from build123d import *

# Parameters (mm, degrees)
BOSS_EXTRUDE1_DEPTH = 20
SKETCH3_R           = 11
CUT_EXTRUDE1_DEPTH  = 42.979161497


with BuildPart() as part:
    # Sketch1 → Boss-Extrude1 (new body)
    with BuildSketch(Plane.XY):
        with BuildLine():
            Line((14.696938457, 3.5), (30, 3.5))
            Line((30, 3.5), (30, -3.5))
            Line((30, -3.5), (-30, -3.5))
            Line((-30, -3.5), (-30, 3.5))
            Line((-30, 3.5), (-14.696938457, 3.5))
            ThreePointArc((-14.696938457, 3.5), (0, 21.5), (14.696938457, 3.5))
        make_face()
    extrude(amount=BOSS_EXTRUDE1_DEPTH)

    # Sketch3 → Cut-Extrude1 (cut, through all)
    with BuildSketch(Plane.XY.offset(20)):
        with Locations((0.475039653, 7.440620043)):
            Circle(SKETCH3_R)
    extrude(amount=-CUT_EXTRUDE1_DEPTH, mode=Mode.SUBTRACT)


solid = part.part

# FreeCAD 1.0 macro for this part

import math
import FreeCAD as App
import Part
import Sketcher

V = App.Vector

doc = App.newDocument("Part")
body = doc.addObject("PartDesign::Body", "Body")

# Sketch on XY plane
sketch1 = body.newObject("Sketcher::SketchObject", "Sketch")
sketch1.AttachmentSupport = (doc.getObject("XY_Plane"), [""])
sketch1.MapMode = "FlatFace"
sketch1.addGeometry(Part.LineSegment(V(30, 4, 0), V(15, 4, 0)), False)
sketch1.addGeometry(Part.ArcOfCircle(Part.Circle(V(0, 6, 0), V(0, 0, 1), 15), math.radians(-12), math.radians(192)), False)
sketch1.addGeometry(Part.LineSegment(V(-15, 4, 0), V(-30, 4, 0)), False)
sketch1.addGeometry(Part.LineSegment(V(-30, 4, 0), V(-30, -4, 0)), False)
sketch1.addGeometry(Part.LineSegment(V(-30, -4, 0), V(30, -4, 0)), False)
sketch1.addGeometry(Part.LineSegment(V(30, -4, 0), V(30, 4, 0)), False)
sketch1.addConstraint(Sketcher.Constraint("Coincident", 0, 2, 1, 1))
sketch1.addConstraint(Sketcher.Constraint("Coincident", 1, 2, 2, 1))
sketch1.addConstraint(Sketcher.Constraint("Coincident", 2, 2, 3, 1))
sketch1.addConstraint(Sketcher.Constraint("Coincident", 3, 2, 4, 1))
sketch1.addConstraint(Sketcher.Constraint("Coincident", 4, 2, 5, 1))
sketch1.addConstraint(Sketcher.Constraint("Coincident", 5, 2, 0, 1))
sketch1.addConstraint(Sketcher.Constraint("Horizontal", 0))
sketch1.addConstraint(Sketcher.Constraint("Horizontal", 2))
sketch1.addConstraint(Sketcher.Constraint("Vertical", 3))
sketch1.addConstraint(Sketcher.Constraint("Horizontal", 4))
sketch1.addConstraint(Sketcher.Constraint("Vertical", 5))
sketch1.addConstraint(Sketcher.Constraint("Symmetric", 2, 2, 4, 2, -1, 1))
sketch1.addConstraint(Sketcher.Constraint("Symmetric", 0, 2, 1, 2, -2))
sketch1.addConstraint(Sketcher.Constraint("Radius", 1, 15.0))
sketch1.addConstraint(Sketcher.Constraint("DistanceX", 4, 1, 4, 2, 60.0))
sketch1.addConstraint(Sketcher.Constraint("DistanceY", 3, 2, 3, 1, 7.0))
sketch1.addConstraint(Sketcher.Constraint("DistanceY", 0, 2, 1, 3, 3.0))
pad1 = body.newObject("PartDesign::Pad", "Pad")
pad1.Profile = sketch1
pad1.Length = 20

# Sketch on XY plane
sketch2 = body.newObject("Sketcher::SketchObject", "Sketch001")
sketch2.AttachmentSupport = (doc.getObject("XY_Plane"), [""])
sketch2.MapMode = "FlatFace"
sketch2.AttachmentOffset = App.Placement(V(0, 0, 20), App.Rotation())
sketch2.addGeometry(Part.Circle(V(0, 7, 0), V(0, 0, 1), 11), False)
sketch2.addConstraint(Sketcher.Constraint("Diameter", 0, 22.0))
sketch2.addConstraint(Sketcher.Constraint("DistanceX", -1, 1, 0, 3, 0.47504))
sketch2.addConstraint(Sketcher.Constraint("DistanceY", -1, 1, 0, 3, 7.44062))
pocket1 = body.newObject("PartDesign::Pocket", "Pocket")
pocket1.Profile = sketch2
pocket1.Type = "ThroughAll"

doc.recompute()
